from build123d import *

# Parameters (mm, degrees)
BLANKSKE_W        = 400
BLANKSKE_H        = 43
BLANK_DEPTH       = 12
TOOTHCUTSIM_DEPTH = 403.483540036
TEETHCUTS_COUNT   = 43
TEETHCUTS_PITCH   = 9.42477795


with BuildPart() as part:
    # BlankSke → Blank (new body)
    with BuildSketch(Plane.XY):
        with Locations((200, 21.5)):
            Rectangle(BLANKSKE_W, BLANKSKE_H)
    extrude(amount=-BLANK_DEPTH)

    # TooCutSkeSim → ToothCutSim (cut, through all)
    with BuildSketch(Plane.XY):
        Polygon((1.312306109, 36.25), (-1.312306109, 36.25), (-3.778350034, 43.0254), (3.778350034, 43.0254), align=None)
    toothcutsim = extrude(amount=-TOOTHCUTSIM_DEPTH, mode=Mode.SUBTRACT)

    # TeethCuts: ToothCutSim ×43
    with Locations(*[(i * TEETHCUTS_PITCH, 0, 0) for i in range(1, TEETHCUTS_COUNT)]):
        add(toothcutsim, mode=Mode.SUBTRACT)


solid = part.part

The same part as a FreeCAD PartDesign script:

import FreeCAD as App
import Part
import Sketcher

V = App.Vector
Q = App.Units.Quantity

doc = App.newDocument("Part")
body = doc.addObject("PartDesign::Body", "Body")

# Sketch on XY plane
sketch1 = body.newObject("Sketcher::SketchObject", "Sketch")
sketch1.AttachmentSupport = (doc.getObject("XY_Plane"), [""])
sketch1.MapMode = "FlatFace"
sketch1.addGeometry([
    Part.LineSegment(V(0, 43, 0), V(0, 0, 0)),
    Part.LineSegment(V(0, 0, 0), V(400, 0, 0)),
    Part.LineSegment(V(400, 0, 0), V(400, 43, 0)),
    Part.LineSegment(V(400, 43, 0), V(0, 43, 0)),
], False)
sketch1.addConstraint([
    Sketcher.Constraint("Coincident", 0, 2, 1, 1),
    Sketcher.Constraint("Coincident", 1, 2, 2, 1),
    Sketcher.Constraint("Coincident", 2, 2, 3, 1),
    Sketcher.Constraint("Coincident", 3, 2, 0, 1),
    Sketcher.Constraint("Vertical", 0),
    Sketcher.Constraint("Horizontal", 1),
    Sketcher.Constraint("Vertical", 2),
    Sketcher.Constraint("Horizontal", 3),
    Sketcher.Constraint("Coincident", 0, 2, -1, 1),
    Sketcher.Constraint("DistanceX", 1, 1, 1, 2, 400.0),
    Sketcher.Constraint("DistanceY", 0, 2, 0, 1, 43.0),
])
pad1 = body.newObject("PartDesign::Pad", "Pad")
pad1.Profile = sketch1
pad1.Length = 12
pad1.Reversed = True

# Sketch on XY plane
sketch2 = body.newObject("Sketcher::SketchObject", "Sketch001")
sketch2.AttachmentSupport = (doc.getObject("XY_Plane"), [""])
sketch2.MapMode = "FlatFace"
sketch2.addGeometry([
    Part.LineSegment(V(-1.3, 36.2, 0), V(1.3, 36.2, 0)),
    Part.LineSegment(V(1.3, 36.2, 0), V(3.8, 43, 0)),
    Part.LineSegment(V(3.8, 43, 0), V(-3.8, 43, 0)),
    Part.LineSegment(V(-3.8, 43, 0), V(-1.3, 36.2, 0)),
], False)
sketch2.addConstraint([
    Sketcher.Constraint("Coincident", 0, 2, 1, 1),
    Sketcher.Constraint("Coincident", 1, 2, 2, 1),
    Sketcher.Constraint("Coincident", 2, 2, 3, 1),
    Sketcher.Constraint("Coincident", 3, 2, 0, 1),
    Sketcher.Constraint("Horizontal", 0),
    Sketcher.Constraint("Horizontal", 2),
    Sketcher.Constraint("Equal", 1, 3),
    Sketcher.Constraint("Angle", 1, Q("70 deg")),
    Sketcher.Constraint("DistanceY", -1, 1, 0, 2, 36.25),
    Sketcher.Constraint("DistanceX", 2, 2, 2, 1, 7.5567),
    Sketcher.Constraint("DistanceY", -1, 1, 1, 2, 43.0254),
    Sketcher.Constraint("DistanceX", -1, 1, 1, 2, 3.77835),
])
pocket1 = body.newObject("PartDesign::Pocket", "Pocket")
pocket1.Profile = sketch2
pocket1.Type = "ThroughAll"
doc.recompute()

linearpattern = body.newObject("PartDesign::LinearPattern", "LinearPattern")
linearpattern.Originals = [pocket1]
linearpattern.Direction = (doc.getObject("X_Axis"), [""])
linearpattern.Mode = "offset"
linearpattern.Offset = 9.424778
linearpattern.Occurrences = 43
body.Tip = linearpattern

doc.recompute()
